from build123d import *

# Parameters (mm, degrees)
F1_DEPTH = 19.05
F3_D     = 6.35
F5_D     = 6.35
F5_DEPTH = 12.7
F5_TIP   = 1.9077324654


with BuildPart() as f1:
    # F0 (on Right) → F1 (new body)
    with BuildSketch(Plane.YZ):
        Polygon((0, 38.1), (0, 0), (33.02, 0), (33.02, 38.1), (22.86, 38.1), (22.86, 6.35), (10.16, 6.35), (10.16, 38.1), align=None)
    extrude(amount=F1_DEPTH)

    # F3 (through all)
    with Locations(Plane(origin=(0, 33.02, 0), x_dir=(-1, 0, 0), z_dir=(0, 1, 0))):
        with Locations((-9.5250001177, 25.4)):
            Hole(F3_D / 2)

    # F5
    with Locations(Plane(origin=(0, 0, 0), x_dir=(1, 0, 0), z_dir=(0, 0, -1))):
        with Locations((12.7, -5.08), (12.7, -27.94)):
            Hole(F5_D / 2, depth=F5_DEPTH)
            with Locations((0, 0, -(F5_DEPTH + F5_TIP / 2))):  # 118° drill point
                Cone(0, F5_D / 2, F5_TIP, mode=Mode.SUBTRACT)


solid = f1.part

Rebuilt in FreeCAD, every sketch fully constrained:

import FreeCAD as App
import Part
import Sketcher
Q = App.Units.Quantity


def add_polygon(sketch, points):
    """Adds a closed chain of lines whose ends are joined by coincident constraints."""
    first, n = sketch.GeometryCount, len(points)
    for a, b in zip(points, points[1:] + points[:1]):
        sketch.addGeometry(Part.LineSegment(App.Vector(*a, 0), App.Vector(*b, 0)), False)
    for i in range(n):
        sketch.addConstraint(Sketcher.Constraint("Coincident", first + i, 2, first + (i + 1) % n, 1))

doc = App.newDocument("Part")
body = doc.addObject("PartDesign::Body", "Body")

# Sketch on YZ plane
sketch1 = body.newObject("Sketcher::SketchObject", "Sketch")
sketch1.AttachmentSupport = (doc.getObject("YZ_Plane"), [""])
sketch1.MapMode = "FlatFace"
add_polygon(sketch1, [(0, 38), (0, 0), (33, 0), (33, 38), (23, 38), (23, 6), (10, 6), (10, 38)])  # lines 0-7
sketch1.addConstraint(Sketcher.Constraint("Vertical", 0))
sketch1.addConstraint(Sketcher.Constraint("Horizontal", 1))
sketch1.addConstraint(Sketcher.Constraint("Vertical", 2))
sketch1.addConstraint(Sketcher.Constraint("Horizontal", 3))
sketch1.addConstraint(Sketcher.Constraint("Vertical", 4))
sketch1.addConstraint(Sketcher.Constraint("Horizontal", 5))
sketch1.addConstraint(Sketcher.Constraint("Vertical", 6))
sketch1.addConstraint(Sketcher.Constraint("Horizontal", 7))
sketch1.addConstraint(Sketcher.Constraint("Coincident", 0, 2, -1, 1))
sketch1.addConstraint(Sketcher.Constraint("Horizontal", 3, 2, 6, 2))
sketch1.addConstraint(Sketcher.Constraint("Equal", 3, 7))
sketch1.addConstraint(Sketcher.Constraint("DistanceX", 1, 1, 1, 2, Q("1.3 in")))
sketch1.addConstraint(Sketcher.Constraint("DistanceX", 3, 2, 3, 1, Q("0.4 in")))
sketch1.addConstraint(Sketcher.Constraint("DistanceY", 0, 2, 0, 1, Q("1.5 in")))
sketch1.addConstraint(Sketcher.Constraint("DistanceY", 4, 2, 4, 1, Q("1.25 in")))
pad1 = body.newObject("PartDesign::Pad", "Pad")
pad1.Profile = sketch1
pad1.Length = Q("0.75 in")

# Sketch on XZ plane
sketch2 = body.newObject("Sketcher::SketchObject", "Sketch001")
sketch2.AttachmentSupport = (doc.getObject("XZ_Plane"), [""])
sketch2.MapMode = "FlatFace"
sketch2.AttachmentOffset = App.Placement(App.Vector(0, 0, -1.3 * 25.4), App.Rotation())
sketch2.addGeometry(Part.Circle(App.Vector(9.5, 25.4, 0), App.Vector(0, 0, 1), 3.2), False)
sketch2.addConstraint(Sketcher.Constraint("Diameter", 0, Q("0.25 in")))
sketch2.addConstraint(Sketcher.Constraint("DistanceY", -1, 1, 0, 3, Q("1 in")))
sketch2.addConstraint(Sketcher.Constraint("DistanceX", -1, 1, 0, 3, Q("0.375 in")))
doc.recompute()
hole = body.newObject("PartDesign::Hole", "Hole")
hole.Profile = sketch2
hole.ThreadType = "None"
hole.Diameter = Q("0.25 in")
hole.DepthType = "ThroughAll"
hole.Reversed = True

# Sketch on XY plane
sketch3 = body.newObject("Sketcher::SketchObject", "Sketch002")
sketch3.AttachmentSupport = (doc.getObject("XY_Plane"), [""])
sketch3.MapMode = "FlatFace"
sketch3.addGeometry(Part.Circle(App.Vector(12.7, 5.1, 0), App.Vector(0, 0, 1), 3.2), False)
sketch3.addGeometry(Part.Circle(App.Vector(12.7, 27.9, 0), App.Vector(0, 0, 1), 3.2), False)
sketch3.addConstraint(Sketcher.Constraint("Equal", 0, 1))
sketch3.addConstraint(Sketcher.Constraint("Vertical", 0, 3, 1, 3))
sketch3.addConstraint(Sketcher.Constraint("Diameter", 0, Q("0.25 in")))
sketch3.addConstraint(Sketcher.Constraint("DistanceX", -1, 1, 0, 3, Q("0.5 in")))
sketch3.addConstraint(Sketcher.Constraint("DistanceY", -1, 1, 0, 3, Q("0.2 in")))
sketch3.addConstraint(Sketcher.Constraint("DistanceY", -1, 1, 1, 3, Q("1.1 in")))
doc.recompute()
hole2 = body.newObject("PartDesign::Hole", "Hole001")
hole2.Profile = sketch3
hole2.ThreadType = "None"
hole2.Diameter = Q("0.25 in")
hole2.DepthType = "Dimension"
hole2.Depth = Q("0.5 in")
hole2.DrillPoint = "Angled"
hole2.DrillPointAngle = 118
hole2.Reversed = True

doc.recompute()
